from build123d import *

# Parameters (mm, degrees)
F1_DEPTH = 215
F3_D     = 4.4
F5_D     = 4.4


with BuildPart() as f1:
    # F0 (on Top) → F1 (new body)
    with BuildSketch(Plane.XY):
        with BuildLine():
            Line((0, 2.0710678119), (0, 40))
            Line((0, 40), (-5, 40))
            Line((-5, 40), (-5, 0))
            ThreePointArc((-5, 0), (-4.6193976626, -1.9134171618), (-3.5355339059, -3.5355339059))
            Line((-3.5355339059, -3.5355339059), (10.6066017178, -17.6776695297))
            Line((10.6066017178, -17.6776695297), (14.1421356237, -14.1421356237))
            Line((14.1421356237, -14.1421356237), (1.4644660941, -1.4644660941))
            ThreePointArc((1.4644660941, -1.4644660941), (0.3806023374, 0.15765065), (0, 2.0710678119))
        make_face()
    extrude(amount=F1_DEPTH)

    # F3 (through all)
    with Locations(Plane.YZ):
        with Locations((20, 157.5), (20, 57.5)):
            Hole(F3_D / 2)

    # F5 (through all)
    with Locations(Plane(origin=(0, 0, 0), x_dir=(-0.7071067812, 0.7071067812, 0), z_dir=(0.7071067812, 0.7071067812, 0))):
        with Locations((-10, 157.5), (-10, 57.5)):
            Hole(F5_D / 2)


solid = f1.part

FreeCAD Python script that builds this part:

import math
import FreeCAD as App
import Part
import Sketcher

V = App.Vector
Q = App.Units.Quantity

doc = App.newDocument("Part")
params = doc.addObject("Spreadsheet::Sheet", "Params")
for row, (alias, value) in enumerate([
    ("sketch1_radius", "5 mm"),
    ("sketch1_height", "40 mm"),
    ("sketch1_length", "20 mm"),
    ("sketch1_length2", "5 mm"),
    ("pad1_length", "215 mm"),
    ("sketch2_diameter", "4.4 mm"),
    ("hole_diameter", "4.4 mm"),
    ("sketch3_diameter", "4.4 mm"),
    ("hole2_diameter", "4.4 mm"),
], start=1):
    params.set(f"A{row}", alias)
    params.set(f"B{row}", "=" + value)
    params.setAlias(f"B{row}", alias)

body = doc.addObject("PartDesign::Body", "Body")

# Sketch on XY plane
sketch1 = body.newObject("Sketcher::SketchObject", "Sketch")
sketch1.AttachmentSupport = (doc.getObject("XY_Plane"), [""])
sketch1.MapMode = "FlatFace"
sketch1.addGeometry([
    Part.LineSegment(V(0, 2.1, 0), V(0, 40, 0)),  # 0
    Part.LineSegment(V(0, 40, 0), V(-5, 40, 0)),  # 1
    Part.LineSegment(V(-5, 40, 0), V(-5, 0, 0)),  # 2
    Part.ArcOfCircle(Part.Circle(V(0, 0, 0), V(0, 0, 1), 5), math.radians(180), math.radians(225)),  # 3
    Part.LineSegment(V(-3.5, -3.5, 0), V(10.6, -17.7, 0)),  # 4
    Part.LineSegment(V(10.6, -17.7, 0), V(14.1, -14.1, 0)),  # 5
    Part.LineSegment(V(14.1, -14.1, 0), V(1.5, -1.5, 0)),  # 6
    Part.ArcOfCircle(Part.Circle(V(5, 2.1, 0), V(0, 0, 1), 5), math.radians(180), math.radians(225)),  # 7
], False)
sketch1.addConstraint([
    Sketcher.Constraint("Coincident", 0, 2, 1, 1),
    Sketcher.Constraint("Coincident", 1, 2, 2, 1),
    Sketcher.Constraint("Tangent", 2, 2, 3, 1),
    Sketcher.Constraint("Tangent", 3, 2, 4, 1),
    Sketcher.Constraint("Coincident", 4, 2, 5, 1),
    Sketcher.Constraint("Coincident", 5, 2, 6, 1),
    Sketcher.Constraint("Tangent", 6, 2, 7, 2),
    Sketcher.Constraint("Tangent", 7, 1, 0, 1),
    Sketcher.Constraint("Vertical", 0),
    Sketcher.Constraint("Horizontal", 1),
    Sketcher.Constraint("Vertical", 2),
    Sketcher.Constraint("Coincident", 3, 3, -1, 1),
    Sketcher.Constraint("Equal", 3, 7),
    Sketcher.Constraint("PointOnObject", 0, 2, -2),
    Sketcher.Constraint("Perpendicular", 4, 5),
    Sketcher.Constraint("Perpendicular", 5, 6),
    Sketcher.Constraint("Radius", 3, Q("5 mm")),
    Sketcher.Constraint("DistanceY", 2, 2, 2, 1, Q("40 mm")),
    Sketcher.Constraint("Angle", 4, Q("-45 deg")),
    Sketcher.Constraint("Distance", 4, Q("20 mm")),
    Sketcher.Constraint("Distance", 5, Q("5 mm")),
])
sketch1.setExpression("Constraints[16]", "Params.sketch1_radius")
sketch1.setExpression("Constraints[17]", "Params.sketch1_height")
sketch1.setExpression("Constraints[19]", "Params.sketch1_length")
sketch1.setExpression("Constraints[20]", "Params.sketch1_length2")
pad1 = body.newObject("PartDesign::Pad", "Pad")
pad1.Profile = sketch1
pad1.setExpression("Length", "Params.pad1_length")

# Sketch on YZ plane
sketch2 = body.newObject("Sketcher::SketchObject", "Sketch001")
sketch2.AttachmentSupport = (doc.getObject("YZ_Plane"), [""])
sketch2.MapMode = "FlatFace"
sketch2.addGeometry([
    Part.Circle(V(20, 157.5, 0), V(0, 0, 1), 2.2),
    Part.Circle(V(20, 57.5, 0), V(0, 0, 1), 2.2),
], False)
sketch2.addConstraint([
    Sketcher.Constraint("Equal", 0, 1),
    Sketcher.Constraint("Vertical", 0, 3, 1, 3),
    Sketcher.Constraint("Diameter", 0, Q("4.4 mm")),
    Sketcher.Constraint("DistanceX", -1, 1, 0, 3, Q("20 mm")),
    Sketcher.Constraint("DistanceY", 1, 3, 0, 3, Q("100 mm")),
    Sketcher.Constraint("DistanceY", -1, 1, 0, 3, Q("157.5 mm")),
])
sketch2.setExpression("Constraints[2]", "Params.sketch2_diameter")
doc.recompute()
hole = body.newObject("PartDesign::Hole", "Hole")
hole.Profile = sketch2
hole.ThreadType = "None"
hole.setExpression("Diameter", "Params.hole_diameter")
hole.DepthType = "ThroughAll"

# Sketch on an angled plane
sketch3 = body.newObject("Sketcher::SketchObject", "Sketch002")
sketch3.Placement = App.Placement(V(0, 0, 0), App.Rotation(V(-0.707106781, 0.707106781, 0), V(0, 0, 0.999999999), V(0.707106781, 0.707106781, 0), "ZXY"))
sketch3.addGeometry([
    Part.Circle(V(-10, 157.5, 0), V(0, 0, 1), 2.2),
    Part.Circle(V(-10, 57.5, 0), V(0, 0, 1), 2.2),
], False)
sketch3.addConstraint([
    Sketcher.Constraint("Equal", 0, 1),
    Sketcher.Constraint("Vertical", 0, 3, 1, 3),
    Sketcher.Constraint("Diameter", 0, Q("4.4 mm")),
    Sketcher.Constraint("DistanceX", 0, 3, -1, 1, Q("10 mm")),
    Sketcher.Constraint("DistanceY", 1, 3, 0, 3, Q("100 mm")),
    Sketcher.Constraint("DistanceY", -1, 1, 0, 3, Q("157.5 mm")),
])
sketch3.setExpression("Constraints[2]", "Params.sketch3_diameter")
doc.recompute()
hole2 = body.newObject("PartDesign::Hole", "Hole001")
hole2.Profile = sketch3
hole2.ThreadType = "None"
hole2.setExpression("Diameter", "Params.hole2_diameter")
hole2.DepthType = "ThroughAll"

doc.recompute()
